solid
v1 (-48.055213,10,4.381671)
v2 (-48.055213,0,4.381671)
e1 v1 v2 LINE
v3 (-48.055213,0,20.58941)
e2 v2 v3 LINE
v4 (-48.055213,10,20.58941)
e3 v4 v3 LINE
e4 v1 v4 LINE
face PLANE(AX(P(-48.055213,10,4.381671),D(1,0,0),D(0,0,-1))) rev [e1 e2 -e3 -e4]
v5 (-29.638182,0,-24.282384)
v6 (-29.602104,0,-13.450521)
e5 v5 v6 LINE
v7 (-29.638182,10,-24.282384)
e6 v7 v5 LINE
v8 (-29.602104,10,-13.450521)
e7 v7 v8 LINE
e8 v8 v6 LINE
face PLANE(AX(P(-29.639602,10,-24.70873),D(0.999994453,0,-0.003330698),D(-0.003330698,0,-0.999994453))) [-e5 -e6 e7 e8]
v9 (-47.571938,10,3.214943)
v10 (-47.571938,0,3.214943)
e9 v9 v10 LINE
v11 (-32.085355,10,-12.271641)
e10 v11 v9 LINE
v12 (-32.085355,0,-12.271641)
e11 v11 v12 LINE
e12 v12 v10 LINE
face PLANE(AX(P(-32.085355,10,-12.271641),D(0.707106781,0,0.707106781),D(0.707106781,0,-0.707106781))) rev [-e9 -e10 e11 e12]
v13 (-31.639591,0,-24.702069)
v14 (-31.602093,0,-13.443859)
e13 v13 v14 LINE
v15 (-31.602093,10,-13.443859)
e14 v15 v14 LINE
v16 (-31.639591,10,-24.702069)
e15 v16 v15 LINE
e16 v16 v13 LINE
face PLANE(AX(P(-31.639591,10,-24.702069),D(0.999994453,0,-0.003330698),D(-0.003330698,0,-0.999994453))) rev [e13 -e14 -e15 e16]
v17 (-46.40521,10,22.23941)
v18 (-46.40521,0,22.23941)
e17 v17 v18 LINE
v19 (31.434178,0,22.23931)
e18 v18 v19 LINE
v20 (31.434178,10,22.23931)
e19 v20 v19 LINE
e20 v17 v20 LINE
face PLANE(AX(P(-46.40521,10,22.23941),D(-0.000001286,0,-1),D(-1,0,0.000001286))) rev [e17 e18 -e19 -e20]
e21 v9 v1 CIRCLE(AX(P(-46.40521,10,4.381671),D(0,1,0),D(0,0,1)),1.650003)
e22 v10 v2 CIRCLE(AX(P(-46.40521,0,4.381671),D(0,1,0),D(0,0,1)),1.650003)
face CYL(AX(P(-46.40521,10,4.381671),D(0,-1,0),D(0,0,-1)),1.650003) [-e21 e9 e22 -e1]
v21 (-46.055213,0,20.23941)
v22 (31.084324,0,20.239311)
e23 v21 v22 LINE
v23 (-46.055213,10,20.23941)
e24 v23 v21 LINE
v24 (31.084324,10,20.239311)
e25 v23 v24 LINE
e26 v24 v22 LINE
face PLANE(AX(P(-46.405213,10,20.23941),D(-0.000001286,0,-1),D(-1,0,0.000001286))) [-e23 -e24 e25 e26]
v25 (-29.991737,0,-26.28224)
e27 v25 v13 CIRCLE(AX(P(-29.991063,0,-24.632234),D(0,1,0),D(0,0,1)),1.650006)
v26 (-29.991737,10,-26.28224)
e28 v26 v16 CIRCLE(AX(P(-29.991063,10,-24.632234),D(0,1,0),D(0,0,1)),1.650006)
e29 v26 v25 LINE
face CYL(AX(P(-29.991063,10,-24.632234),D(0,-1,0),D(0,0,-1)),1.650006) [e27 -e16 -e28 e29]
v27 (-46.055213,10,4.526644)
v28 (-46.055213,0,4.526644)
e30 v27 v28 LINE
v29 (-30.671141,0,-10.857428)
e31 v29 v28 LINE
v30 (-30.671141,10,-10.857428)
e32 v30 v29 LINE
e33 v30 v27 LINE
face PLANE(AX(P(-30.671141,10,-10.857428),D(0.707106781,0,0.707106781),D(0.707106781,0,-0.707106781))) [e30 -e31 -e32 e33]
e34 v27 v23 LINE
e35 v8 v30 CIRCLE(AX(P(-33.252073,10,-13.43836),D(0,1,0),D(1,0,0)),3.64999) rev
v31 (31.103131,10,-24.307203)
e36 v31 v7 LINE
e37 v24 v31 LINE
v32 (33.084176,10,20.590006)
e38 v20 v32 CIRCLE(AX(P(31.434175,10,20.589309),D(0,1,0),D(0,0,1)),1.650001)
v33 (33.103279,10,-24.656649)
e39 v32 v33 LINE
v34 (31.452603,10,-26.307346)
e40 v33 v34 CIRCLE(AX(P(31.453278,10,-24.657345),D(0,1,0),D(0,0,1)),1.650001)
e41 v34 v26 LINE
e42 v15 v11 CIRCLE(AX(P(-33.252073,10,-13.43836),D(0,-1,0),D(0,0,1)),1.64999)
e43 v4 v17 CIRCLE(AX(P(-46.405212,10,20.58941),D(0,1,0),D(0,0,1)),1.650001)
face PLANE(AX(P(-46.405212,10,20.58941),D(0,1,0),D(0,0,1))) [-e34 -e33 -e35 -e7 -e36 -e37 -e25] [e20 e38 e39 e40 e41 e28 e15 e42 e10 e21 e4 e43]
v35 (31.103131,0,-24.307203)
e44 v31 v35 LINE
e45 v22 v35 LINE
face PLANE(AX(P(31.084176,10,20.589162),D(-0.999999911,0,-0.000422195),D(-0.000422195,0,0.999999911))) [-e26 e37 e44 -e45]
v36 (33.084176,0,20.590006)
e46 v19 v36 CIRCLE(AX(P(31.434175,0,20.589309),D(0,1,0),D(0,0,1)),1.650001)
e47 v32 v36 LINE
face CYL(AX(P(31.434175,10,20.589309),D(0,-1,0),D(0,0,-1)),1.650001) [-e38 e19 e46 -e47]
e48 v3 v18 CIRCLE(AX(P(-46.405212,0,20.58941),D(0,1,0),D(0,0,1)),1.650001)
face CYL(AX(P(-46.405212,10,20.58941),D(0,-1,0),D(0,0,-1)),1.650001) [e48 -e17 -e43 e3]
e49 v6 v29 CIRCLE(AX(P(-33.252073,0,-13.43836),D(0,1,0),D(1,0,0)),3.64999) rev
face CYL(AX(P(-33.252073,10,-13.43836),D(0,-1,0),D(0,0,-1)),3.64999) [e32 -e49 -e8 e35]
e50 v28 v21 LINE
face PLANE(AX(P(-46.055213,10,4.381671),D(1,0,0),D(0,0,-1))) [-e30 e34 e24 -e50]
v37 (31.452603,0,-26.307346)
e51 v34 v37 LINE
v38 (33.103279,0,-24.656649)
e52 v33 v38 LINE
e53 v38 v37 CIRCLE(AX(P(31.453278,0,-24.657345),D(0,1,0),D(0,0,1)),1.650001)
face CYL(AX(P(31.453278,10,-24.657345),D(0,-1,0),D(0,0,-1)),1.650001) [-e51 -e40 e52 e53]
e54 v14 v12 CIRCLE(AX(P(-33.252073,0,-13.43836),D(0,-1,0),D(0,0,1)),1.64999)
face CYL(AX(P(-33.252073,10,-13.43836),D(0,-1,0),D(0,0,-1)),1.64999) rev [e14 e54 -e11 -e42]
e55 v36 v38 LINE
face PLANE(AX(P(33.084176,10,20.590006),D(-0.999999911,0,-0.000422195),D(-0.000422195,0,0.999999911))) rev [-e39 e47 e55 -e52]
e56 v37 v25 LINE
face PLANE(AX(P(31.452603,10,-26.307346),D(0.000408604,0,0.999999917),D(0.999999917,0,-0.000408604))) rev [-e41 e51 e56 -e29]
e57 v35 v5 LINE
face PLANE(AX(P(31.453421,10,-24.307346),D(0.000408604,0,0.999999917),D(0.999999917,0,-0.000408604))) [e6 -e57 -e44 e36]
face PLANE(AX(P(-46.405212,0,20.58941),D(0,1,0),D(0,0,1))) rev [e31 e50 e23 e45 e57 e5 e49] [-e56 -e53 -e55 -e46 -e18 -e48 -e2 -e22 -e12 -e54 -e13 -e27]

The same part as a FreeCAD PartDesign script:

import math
import FreeCAD as App
import Part
import Sketcher

doc = App.newDocument("Part")
body = doc.addObject("PartDesign::Body", "Body")

sketch1 = body.newObject("Sketcher::SketchObject", "Sketch")
sketch1.AttachmentSupport = (doc.getObject("XZ_Plane"), [""])
sketch1.MapMode = "FlatFace"
sketch1.addGeometry(Part.LineSegment(App.Vector(-48.055213, 4.381671, 0), App.Vector(-48.055213, 20.58941, 0)), False)
sketch1.addGeometry(Part.ArcOfCircle(Part.Circle(App.Vector(-46.405212, 20.58941, 0), App.Vector(0, 0, 1), 1.650001), math.radians(89.999926), math.radians(180)), False)
sketch1.addGeometry(Part.LineSegment(App.Vector(-46.40521, 22.23941, 0), App.Vector(31.434178, 22.23931, 0)), False)
sketch1.addGeometry(Part.ArcOfCircle(Part.Circle(App.Vector(31.434175, 20.589309, 0), App.Vector(0, 0, 1), 1.650001), math.radians(0.02419), math.radians(89.999926)), False)
sketch1.addGeometry(Part.LineSegment(App.Vector(33.084176, 20.590006, 0), App.Vector(33.103279, -24.656649, 0)), False)
sketch1.addGeometry(Part.ArcOfCircle(Part.Circle(App.Vector(31.453278, -24.657345, 0), App.Vector(0, 0, 1), 1.650001), math.radians(-90.023416), math.radians(0.02419)), False)
sketch1.addGeometry(Part.LineSegment(App.Vector(31.452603, -26.307346, 0), App.Vector(-29.991737, -26.28224, 0)), False)
sketch1.addGeometry(Part.ArcOfCircle(Part.Circle(App.Vector(-29.991063, -24.632234, 0), App.Vector(0, 0, 1), 1.650006), math.radians(-177.57427), math.radians(-90.023411)), False)
sketch1.addGeometry(Part.LineSegment(App.Vector(-31.639591, -24.702069, 0), App.Vector(-31.602093, -13.443859, 0)), False)
sketch1.addGeometry(Part.ArcOfCircle(Part.Circle(App.Vector(-33.252073, -13.43836, 0), App.Vector(0, 0, 1), 1.64999), math.radians(-0.190957), math.radians(45)), False)
sketch1.addGeometry(Part.LineSegment(App.Vector(-32.085355, -12.271641, 0), App.Vector(-47.571938, 3.214943, 0)), False)
sketch1.addGeometry(Part.ArcOfCircle(Part.Circle(App.Vector(-46.40521, 4.381671, 0), App.Vector(0, 0, 1), 1.650003), math.radians(-180), math.radians(-135)), False)
sketch1.addGeometry(Part.LineSegment(App.Vector(-46.055213, 20.23941, 0), App.Vector(-46.055213, 4.526644, 0)), False)
sketch1.addGeometry(Part.LineSegment(App.Vector(-46.055213, 4.526644, 0), App.Vector(-30.671141, -10.857428, 0)), False)
sketch1.addGeometry(Part.ArcOfCircle(Part.Circle(App.Vector(-33.252073, -13.43836, 0), App.Vector(0, 0, 1), 3.64999), math.radians(-0.190917), math.radians(45)), False)
sketch1.addGeometry(Part.LineSegment(App.Vector(-29.602104, -13.450522, 0), App.Vector(-29.638182, -24.282384, 0)), False)
sketch1.addGeometry(Part.LineSegment(App.Vector(-29.638182, -24.282384, 0), App.Vector(31.103131, -24.307203, 0)), False)
sketch1.addGeometry(Part.LineSegment(App.Vector(31.103131, -24.307203, 0), App.Vector(31.084324, 20.239311, 0)), False)
sketch1.addGeometry(Part.LineSegment(App.Vector(31.084324, 20.239311, 0), App.Vector(-46.055213, 20.23941, 0)), False)
sketch1.addConstraint(Sketcher.Constraint("Coincident", 0, 2, 1, 2))
sketch1.addConstraint(Sketcher.Constraint("Coincident", 1, 1, 2, 1))
sketch1.addConstraint(Sketcher.Constraint("Coincident", 2, 2, 3, 2))
sketch1.addConstraint(Sketcher.Constraint("Coincident", 3, 1, 4, 1))
sketch1.addConstraint(Sketcher.Constraint("Coincident", 4, 2, 5, 2))
sketch1.addConstraint(Sketcher.Constraint("Coincident", 5, 1, 6, 1))
sketch1.addConstraint(Sketcher.Constraint("Coincident", 6, 2, 7, 2))
sketch1.addConstraint(Sketcher.Constraint("Coincident", 7, 1, 8, 1))
sketch1.addConstraint(Sketcher.Constraint("Coincident", 8, 2, 9, 1))
sketch1.addConstraint(Sketcher.Constraint("Coincident", 9, 2, 10, 1))
sketch1.addConstraint(Sketcher.Constraint("Coincident", 10, 2, 11, 2))
sketch1.addConstraint(Sketcher.Constraint("Coincident", 11, 1, 0, 1))
sketch1.addConstraint(Sketcher.Constraint("Coincident", 12, 2, 13, 1))
sketch1.addConstraint(Sketcher.Constraint("Coincident", 13, 2, 14, 2))
sketch1.addConstraint(Sketcher.Constraint("Coincident", 14, 1, 15, 1))
sketch1.addConstraint(Sketcher.Constraint("Coincident", 15, 2, 16, 1))
sketch1.addConstraint(Sketcher.Constraint("Coincident", 16, 2, 17, 1))
sketch1.addConstraint(Sketcher.Constraint("Coincident", 17, 2, 18, 1))
sketch1.addConstraint(Sketcher.Constraint("Coincident", 18, 2, 12, 1))
sketch1.addConstraint(Sketcher.Constraint("Vertical", 0))
sketch1.addConstraint(Sketcher.Constraint("Vertical", 12))
sketch1.addConstraint(Sketcher.Constraint("Coincident", 14, 3, 9, 3))
sketch1.addConstraint(Sketcher.Constraint("Radius", 1, 1.650001))
sketch1.addConstraint(Sketcher.Constraint("Radius", 3, 1.650001))
sketch1.addConstraint(Sketcher.Constraint("Radius", 5, 1.650001))
sketch1.addConstraint(Sketcher.Constraint("DistanceX", 11, 1, 12, 2, 2.0))
sketch1.addConstraint(Sketcher.Constraint("DistanceY", 17, 2, 2, 2, 2.0))
sketch1.addConstraint(Sketcher.Constraint("DistanceY", 18, 2, 1, 1, 2.0))
sketch1.addConstraint(Sketcher.Constraint("Radius", 9, 1.64999))
sketch1.addConstraint(Sketcher.Constraint("Radius", 14, 3.64999))
sketch1.addConstraint(Sketcher.Constraint("DistanceY", 0, 2, 1, 1, 1.650001))
sketch1.addConstraint(Sketcher.Constraint("DistanceX", 2, 2, 3, 1, 1.649998))
sketch1.addConstraint(Sketcher.Constraint("Radius", 7, 1.650006))
sketch1.addConstraint(Sketcher.Constraint("Radius", 11, 1.650003))
sketch1.addConstraint(Sketcher.Constraint("DistanceY", 0, 1, 0, 2, 16.207739))
sketch1.addConstraint(Sketcher.Constraint("DistanceY", 3, 3, 1, 3, 0.0001))
sketch1.addConstraint(Sketcher.Constraint("DistanceX", 2, 2, 5, 3, 0.0191))
sketch1.addConstraint(Sketcher.Constraint("DistanceY", 8, 2, 14, 3, 0.005499))
sketch1.addConstraint(Sketcher.Constraint("DistanceY", 10, 2, 12, 2, 1.311702))
sketch1.addConstraint(Sketcher.Constraint("Distance", 4, 45.246659))
sketch1.addConstraint(Sketcher.Constraint("Distance", 15, 10.831922))
sketch1.addConstraint(Sketcher.Constraint("DistanceY", 12, 2, 12, 1, 15.712765))
sketch1.addConstraint(Sketcher.Constraint("DistanceY", -1, 1, 1, 3, 20.58941))
sketch1.addConstraint(Sketcher.Constraint("DistanceY", 9, 3, -1, 1, 13.43836))
sketch1.addConstraint(Sketcher.Constraint("DistanceX", 11, 3, -1, 1, 46.40521))
sketch1.addConstraint(Sketcher.Constraint("DistanceY", -1, 1, 11, 3, 4.381671))
sketch1.addConstraint(Sketcher.Constraint("DistanceX", 1, 1, -1, 1, 46.40521))
sketch1.addConstraint(Sketcher.Constraint("DistanceX", -1, 1, 4, 2, 33.103279))
sketch1.addConstraint(Sketcher.Constraint("DistanceY", 4, 2, -1, 1, 24.656649))
sketch1.addConstraint(Sketcher.Constraint("DistanceY", 6, 2, -1, 1, 26.28224))
sketch1.addConstraint(Sketcher.Constraint("DistanceX", 7, 1, -1, 1, 31.639591))
sketch1.addConstraint(Sketcher.Constraint("DistanceY", 7, 1, -1, 1, 24.702069))
sketch1.addConstraint(Sketcher.Constraint("DistanceY", 9, 2, -1, 1, 12.271641))
sketch1.addConstraint(Sketcher.Constraint("DistanceX", 13, 2, -1, 1, 30.671141))
sketch1.addConstraint(Sketcher.Constraint("DistanceX", 15, 2, -1, 1, 29.638182))
sketch1.addConstraint(Sketcher.Constraint("DistanceX", -1, 1, 16, 2, 31.103131))
sketch1.addConstraint(Sketcher.Constraint("DistanceY", 5, 3, 7, 3, 0.025112))
sketch1.addConstraint(Sketcher.Constraint("DistanceX", 9, 3, 7, 3, 3.261011))
sketch1.addConstraint(Sketcher.Constraint("DistanceX", 3, 3, 5, 1, 0.018428))
sketch1.addConstraint(Sketcher.Constraint("DistanceY", 14, 1, 9, 2, 1.178881))
sketch1.addConstraint(Sketcher.Constraint("DistanceY", 5, 3, 16, 2, 0.350142))
sketch1.addConstraint(Sketcher.Constraint("DistanceX", 17, 2, 3, 3, 0.349852))
sketch1.addConstraint(Sketcher.Constraint("Distance", 6, 61.444346))
pad1 = body.newObject("PartDesign::Pad", "Pad")
pad1.Profile = sketch1
pad1.Length = 10
pad1.Reversed = True

doc.recompute()
